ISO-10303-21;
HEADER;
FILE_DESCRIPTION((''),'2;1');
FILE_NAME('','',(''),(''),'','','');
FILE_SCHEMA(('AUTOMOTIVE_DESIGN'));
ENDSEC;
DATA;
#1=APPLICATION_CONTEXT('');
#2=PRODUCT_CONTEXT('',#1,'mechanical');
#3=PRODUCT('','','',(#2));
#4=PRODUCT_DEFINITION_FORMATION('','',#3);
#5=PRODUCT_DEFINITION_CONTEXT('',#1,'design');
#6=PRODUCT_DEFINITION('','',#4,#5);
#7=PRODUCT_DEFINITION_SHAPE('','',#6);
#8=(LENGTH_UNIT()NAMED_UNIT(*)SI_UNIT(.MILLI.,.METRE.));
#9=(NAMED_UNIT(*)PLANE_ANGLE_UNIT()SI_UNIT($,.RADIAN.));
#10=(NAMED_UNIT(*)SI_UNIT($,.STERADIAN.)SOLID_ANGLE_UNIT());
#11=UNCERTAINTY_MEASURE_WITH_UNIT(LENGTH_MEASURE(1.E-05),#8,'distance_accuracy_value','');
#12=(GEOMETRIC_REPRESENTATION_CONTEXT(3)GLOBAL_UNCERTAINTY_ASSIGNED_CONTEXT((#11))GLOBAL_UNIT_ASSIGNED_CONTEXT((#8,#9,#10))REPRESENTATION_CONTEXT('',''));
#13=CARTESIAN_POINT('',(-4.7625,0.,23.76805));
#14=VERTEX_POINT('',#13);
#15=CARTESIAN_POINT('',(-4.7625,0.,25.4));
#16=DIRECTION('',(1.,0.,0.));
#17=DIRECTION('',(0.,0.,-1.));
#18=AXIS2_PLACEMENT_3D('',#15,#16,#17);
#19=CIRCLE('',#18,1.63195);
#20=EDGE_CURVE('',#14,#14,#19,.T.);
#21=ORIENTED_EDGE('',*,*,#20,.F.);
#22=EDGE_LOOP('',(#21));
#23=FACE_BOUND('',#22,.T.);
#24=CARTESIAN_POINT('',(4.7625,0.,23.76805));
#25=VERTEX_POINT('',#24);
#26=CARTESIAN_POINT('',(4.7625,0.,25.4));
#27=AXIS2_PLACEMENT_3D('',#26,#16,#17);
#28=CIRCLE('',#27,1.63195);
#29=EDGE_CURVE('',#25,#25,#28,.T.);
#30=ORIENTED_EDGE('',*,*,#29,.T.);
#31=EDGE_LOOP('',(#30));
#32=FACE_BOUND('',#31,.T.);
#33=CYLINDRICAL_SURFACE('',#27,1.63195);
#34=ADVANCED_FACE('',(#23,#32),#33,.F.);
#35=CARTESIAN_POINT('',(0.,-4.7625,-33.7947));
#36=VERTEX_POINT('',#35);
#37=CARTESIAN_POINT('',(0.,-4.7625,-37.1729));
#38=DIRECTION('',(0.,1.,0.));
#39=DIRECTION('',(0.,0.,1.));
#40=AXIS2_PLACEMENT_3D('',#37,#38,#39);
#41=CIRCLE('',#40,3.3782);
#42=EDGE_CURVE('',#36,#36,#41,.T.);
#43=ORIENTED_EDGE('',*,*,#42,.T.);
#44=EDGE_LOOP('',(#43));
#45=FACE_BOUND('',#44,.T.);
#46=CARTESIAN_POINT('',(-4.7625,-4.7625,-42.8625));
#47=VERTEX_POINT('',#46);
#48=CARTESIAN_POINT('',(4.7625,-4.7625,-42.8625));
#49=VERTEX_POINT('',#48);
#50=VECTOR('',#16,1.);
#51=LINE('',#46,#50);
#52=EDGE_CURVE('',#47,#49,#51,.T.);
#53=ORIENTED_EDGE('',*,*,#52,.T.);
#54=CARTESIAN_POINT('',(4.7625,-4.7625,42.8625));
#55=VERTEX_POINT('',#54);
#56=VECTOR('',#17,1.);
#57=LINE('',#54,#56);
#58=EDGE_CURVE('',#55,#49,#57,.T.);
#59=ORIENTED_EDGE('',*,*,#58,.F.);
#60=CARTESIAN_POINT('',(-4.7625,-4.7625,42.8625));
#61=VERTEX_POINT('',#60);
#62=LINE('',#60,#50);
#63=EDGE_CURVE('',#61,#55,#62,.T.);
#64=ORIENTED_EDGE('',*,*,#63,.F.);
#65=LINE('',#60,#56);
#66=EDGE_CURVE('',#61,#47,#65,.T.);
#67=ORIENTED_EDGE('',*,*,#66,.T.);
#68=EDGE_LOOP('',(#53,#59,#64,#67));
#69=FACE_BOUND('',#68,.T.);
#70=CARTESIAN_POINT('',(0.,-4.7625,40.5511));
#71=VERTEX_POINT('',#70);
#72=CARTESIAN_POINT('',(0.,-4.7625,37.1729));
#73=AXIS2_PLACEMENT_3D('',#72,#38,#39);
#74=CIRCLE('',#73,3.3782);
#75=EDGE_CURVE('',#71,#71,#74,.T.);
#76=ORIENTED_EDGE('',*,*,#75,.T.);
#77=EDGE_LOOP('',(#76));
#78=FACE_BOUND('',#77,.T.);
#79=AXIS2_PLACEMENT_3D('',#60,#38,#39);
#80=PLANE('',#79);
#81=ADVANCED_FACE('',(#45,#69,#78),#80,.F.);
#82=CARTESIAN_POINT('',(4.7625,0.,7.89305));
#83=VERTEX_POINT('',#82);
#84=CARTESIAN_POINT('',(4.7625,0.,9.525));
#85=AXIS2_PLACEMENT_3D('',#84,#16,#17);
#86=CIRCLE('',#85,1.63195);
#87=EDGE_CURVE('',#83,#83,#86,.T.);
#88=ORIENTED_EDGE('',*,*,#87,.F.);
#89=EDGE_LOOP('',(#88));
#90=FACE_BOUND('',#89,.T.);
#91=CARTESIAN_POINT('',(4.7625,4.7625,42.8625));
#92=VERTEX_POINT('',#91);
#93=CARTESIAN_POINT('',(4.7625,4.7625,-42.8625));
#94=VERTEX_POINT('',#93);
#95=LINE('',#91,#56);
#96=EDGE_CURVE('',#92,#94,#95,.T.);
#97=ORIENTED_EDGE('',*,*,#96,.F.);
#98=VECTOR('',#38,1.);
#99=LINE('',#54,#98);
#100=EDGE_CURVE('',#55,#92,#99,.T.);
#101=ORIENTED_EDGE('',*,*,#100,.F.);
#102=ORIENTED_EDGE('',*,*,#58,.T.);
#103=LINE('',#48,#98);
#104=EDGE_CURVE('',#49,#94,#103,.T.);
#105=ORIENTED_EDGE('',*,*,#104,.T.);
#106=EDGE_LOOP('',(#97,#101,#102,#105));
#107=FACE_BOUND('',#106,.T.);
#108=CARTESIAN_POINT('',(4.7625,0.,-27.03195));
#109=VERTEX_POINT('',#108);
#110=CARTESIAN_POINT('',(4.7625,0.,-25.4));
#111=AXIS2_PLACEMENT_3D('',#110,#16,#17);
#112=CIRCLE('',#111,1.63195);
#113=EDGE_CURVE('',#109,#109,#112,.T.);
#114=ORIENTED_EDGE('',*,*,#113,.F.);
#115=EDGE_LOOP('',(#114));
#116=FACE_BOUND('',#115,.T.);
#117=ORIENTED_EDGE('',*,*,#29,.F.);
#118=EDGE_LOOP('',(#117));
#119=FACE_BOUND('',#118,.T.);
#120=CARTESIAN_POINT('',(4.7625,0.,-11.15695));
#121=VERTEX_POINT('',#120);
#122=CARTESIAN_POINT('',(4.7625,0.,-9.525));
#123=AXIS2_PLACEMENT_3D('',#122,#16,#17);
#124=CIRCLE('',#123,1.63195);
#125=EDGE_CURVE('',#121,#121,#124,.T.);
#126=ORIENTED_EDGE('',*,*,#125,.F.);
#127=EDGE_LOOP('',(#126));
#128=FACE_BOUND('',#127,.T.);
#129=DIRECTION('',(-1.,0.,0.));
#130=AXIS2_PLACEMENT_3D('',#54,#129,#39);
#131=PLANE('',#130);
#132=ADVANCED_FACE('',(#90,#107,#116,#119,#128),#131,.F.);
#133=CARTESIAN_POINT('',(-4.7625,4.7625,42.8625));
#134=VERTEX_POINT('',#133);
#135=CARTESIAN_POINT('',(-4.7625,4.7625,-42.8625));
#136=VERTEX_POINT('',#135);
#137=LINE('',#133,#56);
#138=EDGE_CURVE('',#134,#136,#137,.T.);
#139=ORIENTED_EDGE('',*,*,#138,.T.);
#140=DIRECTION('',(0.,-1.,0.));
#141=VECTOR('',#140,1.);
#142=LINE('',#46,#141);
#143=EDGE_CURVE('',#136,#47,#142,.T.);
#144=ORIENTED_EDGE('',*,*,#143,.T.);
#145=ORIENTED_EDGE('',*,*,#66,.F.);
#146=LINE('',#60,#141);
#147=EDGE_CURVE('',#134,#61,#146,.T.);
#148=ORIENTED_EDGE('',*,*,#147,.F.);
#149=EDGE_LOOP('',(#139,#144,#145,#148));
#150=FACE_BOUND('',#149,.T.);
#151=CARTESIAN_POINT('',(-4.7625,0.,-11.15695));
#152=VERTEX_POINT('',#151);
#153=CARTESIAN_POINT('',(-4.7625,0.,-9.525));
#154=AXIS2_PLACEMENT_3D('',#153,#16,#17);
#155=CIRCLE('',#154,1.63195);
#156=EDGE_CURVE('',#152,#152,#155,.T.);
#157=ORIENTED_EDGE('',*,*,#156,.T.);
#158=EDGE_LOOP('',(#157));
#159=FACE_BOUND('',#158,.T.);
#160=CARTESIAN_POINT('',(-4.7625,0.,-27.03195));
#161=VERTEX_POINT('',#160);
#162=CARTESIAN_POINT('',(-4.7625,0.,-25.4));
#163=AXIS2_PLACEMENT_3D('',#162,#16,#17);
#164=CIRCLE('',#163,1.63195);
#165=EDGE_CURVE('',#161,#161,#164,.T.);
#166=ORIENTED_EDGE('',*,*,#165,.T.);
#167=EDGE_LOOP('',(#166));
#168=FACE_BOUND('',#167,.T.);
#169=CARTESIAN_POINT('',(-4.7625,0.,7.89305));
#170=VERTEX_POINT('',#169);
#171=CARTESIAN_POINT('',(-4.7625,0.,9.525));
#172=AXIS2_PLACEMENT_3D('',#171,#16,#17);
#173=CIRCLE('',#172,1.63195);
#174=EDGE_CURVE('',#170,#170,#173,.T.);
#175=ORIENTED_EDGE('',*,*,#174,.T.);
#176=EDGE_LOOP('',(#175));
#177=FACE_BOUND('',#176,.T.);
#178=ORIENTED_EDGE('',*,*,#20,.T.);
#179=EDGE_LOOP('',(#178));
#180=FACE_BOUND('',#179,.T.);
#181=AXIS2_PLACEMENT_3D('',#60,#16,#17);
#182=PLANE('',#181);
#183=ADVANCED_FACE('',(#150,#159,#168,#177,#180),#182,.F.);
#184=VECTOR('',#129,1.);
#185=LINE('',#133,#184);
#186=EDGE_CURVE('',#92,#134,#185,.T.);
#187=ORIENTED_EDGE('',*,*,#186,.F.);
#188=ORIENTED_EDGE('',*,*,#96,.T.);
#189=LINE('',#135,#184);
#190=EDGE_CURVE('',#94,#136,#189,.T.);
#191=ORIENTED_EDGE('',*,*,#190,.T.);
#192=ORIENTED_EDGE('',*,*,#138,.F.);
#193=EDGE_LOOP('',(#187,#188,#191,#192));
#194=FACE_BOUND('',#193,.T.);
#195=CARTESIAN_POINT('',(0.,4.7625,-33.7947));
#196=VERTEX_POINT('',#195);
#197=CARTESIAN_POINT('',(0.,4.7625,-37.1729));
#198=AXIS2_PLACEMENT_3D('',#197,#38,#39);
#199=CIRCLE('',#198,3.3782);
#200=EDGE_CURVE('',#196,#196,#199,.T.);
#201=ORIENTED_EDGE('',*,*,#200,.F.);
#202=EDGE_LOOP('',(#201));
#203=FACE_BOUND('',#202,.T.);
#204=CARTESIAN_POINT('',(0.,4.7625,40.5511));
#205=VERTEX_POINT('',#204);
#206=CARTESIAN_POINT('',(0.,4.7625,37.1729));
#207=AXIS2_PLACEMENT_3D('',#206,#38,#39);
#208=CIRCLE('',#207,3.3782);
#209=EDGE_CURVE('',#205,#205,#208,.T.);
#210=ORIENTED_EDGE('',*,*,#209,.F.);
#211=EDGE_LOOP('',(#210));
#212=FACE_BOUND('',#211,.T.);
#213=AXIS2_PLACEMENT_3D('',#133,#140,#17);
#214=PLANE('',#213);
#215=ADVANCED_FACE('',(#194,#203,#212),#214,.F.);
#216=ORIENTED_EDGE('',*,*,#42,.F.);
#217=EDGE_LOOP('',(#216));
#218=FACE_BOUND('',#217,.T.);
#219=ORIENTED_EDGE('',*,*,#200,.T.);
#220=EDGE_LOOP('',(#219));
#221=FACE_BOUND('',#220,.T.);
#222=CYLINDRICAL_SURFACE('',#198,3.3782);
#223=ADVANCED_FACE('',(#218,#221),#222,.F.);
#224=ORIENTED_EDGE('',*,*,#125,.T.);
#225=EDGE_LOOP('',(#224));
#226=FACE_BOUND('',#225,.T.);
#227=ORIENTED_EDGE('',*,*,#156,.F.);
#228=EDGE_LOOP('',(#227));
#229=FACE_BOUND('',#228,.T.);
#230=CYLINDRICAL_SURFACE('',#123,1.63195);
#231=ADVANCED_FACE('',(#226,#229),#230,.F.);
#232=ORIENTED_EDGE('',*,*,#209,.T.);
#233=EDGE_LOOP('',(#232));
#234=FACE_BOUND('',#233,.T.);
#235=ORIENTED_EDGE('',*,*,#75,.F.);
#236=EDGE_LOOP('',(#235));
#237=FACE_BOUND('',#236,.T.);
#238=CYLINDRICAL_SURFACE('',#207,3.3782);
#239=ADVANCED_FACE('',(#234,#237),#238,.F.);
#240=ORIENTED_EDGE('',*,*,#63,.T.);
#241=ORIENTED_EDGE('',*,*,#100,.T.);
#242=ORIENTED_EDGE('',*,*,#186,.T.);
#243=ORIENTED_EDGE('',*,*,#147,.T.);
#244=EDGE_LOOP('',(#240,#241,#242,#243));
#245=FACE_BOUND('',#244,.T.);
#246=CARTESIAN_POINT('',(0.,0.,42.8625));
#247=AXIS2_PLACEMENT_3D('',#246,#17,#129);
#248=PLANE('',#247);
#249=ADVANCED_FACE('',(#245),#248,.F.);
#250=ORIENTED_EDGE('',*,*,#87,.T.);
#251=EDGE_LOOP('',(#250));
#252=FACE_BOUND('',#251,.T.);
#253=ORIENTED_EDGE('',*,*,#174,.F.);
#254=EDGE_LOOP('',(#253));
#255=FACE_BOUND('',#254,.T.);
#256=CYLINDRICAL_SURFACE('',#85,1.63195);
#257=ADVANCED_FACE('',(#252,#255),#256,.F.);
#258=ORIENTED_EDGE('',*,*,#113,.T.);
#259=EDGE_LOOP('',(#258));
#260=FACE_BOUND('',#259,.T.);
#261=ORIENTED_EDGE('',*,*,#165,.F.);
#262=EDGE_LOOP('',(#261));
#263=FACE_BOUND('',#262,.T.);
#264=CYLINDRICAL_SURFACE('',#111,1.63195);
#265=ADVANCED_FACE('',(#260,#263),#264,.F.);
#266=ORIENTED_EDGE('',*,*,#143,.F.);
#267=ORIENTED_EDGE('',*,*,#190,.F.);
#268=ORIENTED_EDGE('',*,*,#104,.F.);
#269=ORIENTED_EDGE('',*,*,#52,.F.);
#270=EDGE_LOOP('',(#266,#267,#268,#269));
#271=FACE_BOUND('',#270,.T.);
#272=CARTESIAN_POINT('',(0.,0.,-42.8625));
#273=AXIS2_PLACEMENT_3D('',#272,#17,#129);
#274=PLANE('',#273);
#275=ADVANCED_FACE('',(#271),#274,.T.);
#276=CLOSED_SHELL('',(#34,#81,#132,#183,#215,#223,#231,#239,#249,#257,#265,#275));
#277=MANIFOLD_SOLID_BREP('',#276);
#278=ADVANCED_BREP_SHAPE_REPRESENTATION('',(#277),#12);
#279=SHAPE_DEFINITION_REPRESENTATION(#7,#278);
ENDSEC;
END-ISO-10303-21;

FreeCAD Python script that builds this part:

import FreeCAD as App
import Part
import Sketcher

V = App.Vector
Q = App.Units.Quantity

doc = App.newDocument("Part")
params = doc.addObject("Spreadsheet::Sheet", "Params")
for row, (alias, value) in enumerate([
    ("sketch1_width", "0.375 in"),
    ("pad1_length", "3.375 in"),
    ("sketch2_diameter", "0.266 in"),
    ("hole_diameter", "0.266 in"),
    ("hole2_diameter", "0.1285 in"),
], start=1):
    params.set(f"A{row}", alias)
    params.set(f"B{row}", "=" + value)
    params.setAlias(f"B{row}", alias)

body = doc.addObject("PartDesign::Body", "Body")

sketch1 = body.newObject("Sketcher::SketchObject", "Sketch")
sketch1.AttachmentSupport = (doc.getObject("XY_Plane"), [""])
sketch1.MapMode = "FlatFace"
sketch1.addGeometry(Part.LineSegment(V(-5, 5, 0), V(-5, -5, 0)), False)
sketch1.addGeometry(Part.LineSegment(V(-5, -5, 0), V(5, -5, 0)), False)
sketch1.addGeometry(Part.LineSegment(V(5, -5, 0), V(5, 5, 0)), False)
sketch1.addGeometry(Part.LineSegment(V(5, 5, 0), V(-5, 5, 0)), False)
sketch1.addConstraint(Sketcher.Constraint("Coincident", 0, 2, 1, 1))
sketch1.addConstraint(Sketcher.Constraint("Coincident", 1, 2, 2, 1))
sketch1.addConstraint(Sketcher.Constraint("Coincident", 2, 2, 3, 1))
sketch1.addConstraint(Sketcher.Constraint("Coincident", 3, 2, 0, 1))
sketch1.addConstraint(Sketcher.Constraint("Vertical", 0))
sketch1.addConstraint(Sketcher.Constraint("Horizontal", 1))
sketch1.addConstraint(Sketcher.Constraint("Vertical", 2))
sketch1.addConstraint(Sketcher.Constraint("Horizontal", 3))
sketch1.addConstraint(Sketcher.Constraint("Symmetric", 0, 2, 2, 2, -1, 1))
sketch1.addConstraint(Sketcher.Constraint("Equal", 3, 0))
sketch1.addConstraint(Sketcher.Constraint("DistanceX", 1, 1, 1, 2, Q("0.375 in")))
sketch1.setExpression("Constraints[10]", "Params.sketch1_width")
pad1 = body.newObject("PartDesign::Pad", "Pad")
pad1.Profile = sketch1
pad1.setExpression("Length", "Params.pad1_length")
pad1.Midplane = True

sketch2 = body.newObject("Sketcher::SketchObject", "Sketch001")
sketch2.AttachmentSupport = (doc.getObject("XZ_Plane"), [""])
sketch2.MapMode = "FlatFace"
sketch2.AttachmentOffset = App.Placement(V(0, 0, -0.1875 * 25.4), App.Rotation())
sketch2.addGeometry(Part.Circle(V(0, -37.2, 0), V(0, 0, 1), 3.4), False)
sketch2.addConstraint(Sketcher.Constraint("PointOnObject", 0, 3, -2))
sketch2.addConstraint(Sketcher.Constraint("Diameter", 0, Q("0.266 in")))
sketch2.addConstraint(Sketcher.Constraint("DistanceY", 0, 3, -1, 1, Q("1.4635 in")))
sketch2.setExpression("Constraints[1]", "Params.sketch2_diameter")
doc.recompute()
hole = body.newObject("PartDesign::Hole", "Hole")
hole.Profile = sketch2
hole.ThreadType = "None"
hole.setExpression("Diameter", "Params.hole_diameter")
hole.DepthType = "ThroughAll"
hole.Reversed = True
doc.recompute()

mirrored = body.newObject("PartDesign::Mirrored", "Mirrored")
mirrored.Originals = [hole]
mirrored.MirrorPlane = (doc.getObject("XY_Plane"), [""])
body.Tip = mirrored

sketch3 = body.newObject("Sketcher::SketchObject", "Sketch002")
sketch3.AttachmentSupport = (doc.getObject("YZ_Plane"), [""])
sketch3.MapMode = "FlatFace"
sketch3.AttachmentOffset = App.Placement(V(0, 0, 0.1875 * 25.4), App.Rotation())
sketch3.addGeometry(Part.Circle(V(0, -9.5, 0), V(0, 0, 1), 1.6), False)
sketch3.addGeometry(Part.Circle(V(0, -25.4, 0), V(0, 0, 1), 1.6), False)
sketch3.addConstraint(Sketcher.Constraint("Equal", 0, 1))
sketch3.addConstraint(Sketcher.Constraint("PointOnObject", 0, 3, -2))
sketch3.addConstraint(Sketcher.Constraint("PointOnObject", 1, 3, -2))
sketch3.addConstraint(Sketcher.Constraint("DistanceY", 1, 3, -1, 1, Q("1 in")))
sketch3.addConstraint(Sketcher.Constraint("Diameter", 0, Q("0.1285 in")))
sketch3.addConstraint(Sketcher.Constraint("DistanceY", 0, 3, -1, 1, Q("0.375 in")))
doc.recompute()
hole2 = body.newObject("PartDesign::Hole", "Hole001")
hole2.Profile = sketch3
hole2.ThreadType = "None"
hole2.setExpression("Diameter", "Params.hole2_diameter")
hole2.DepthType = "ThroughAll"
doc.recompute()

mirrored2 = body.newObject("PartDesign::Mirrored", "Mirrored001")
mirrored2.Originals = [hole2]
mirrored2.MirrorPlane = (doc.getObject("XY_Plane"), [""])
body.Tip = mirrored2

doc.recompute()
